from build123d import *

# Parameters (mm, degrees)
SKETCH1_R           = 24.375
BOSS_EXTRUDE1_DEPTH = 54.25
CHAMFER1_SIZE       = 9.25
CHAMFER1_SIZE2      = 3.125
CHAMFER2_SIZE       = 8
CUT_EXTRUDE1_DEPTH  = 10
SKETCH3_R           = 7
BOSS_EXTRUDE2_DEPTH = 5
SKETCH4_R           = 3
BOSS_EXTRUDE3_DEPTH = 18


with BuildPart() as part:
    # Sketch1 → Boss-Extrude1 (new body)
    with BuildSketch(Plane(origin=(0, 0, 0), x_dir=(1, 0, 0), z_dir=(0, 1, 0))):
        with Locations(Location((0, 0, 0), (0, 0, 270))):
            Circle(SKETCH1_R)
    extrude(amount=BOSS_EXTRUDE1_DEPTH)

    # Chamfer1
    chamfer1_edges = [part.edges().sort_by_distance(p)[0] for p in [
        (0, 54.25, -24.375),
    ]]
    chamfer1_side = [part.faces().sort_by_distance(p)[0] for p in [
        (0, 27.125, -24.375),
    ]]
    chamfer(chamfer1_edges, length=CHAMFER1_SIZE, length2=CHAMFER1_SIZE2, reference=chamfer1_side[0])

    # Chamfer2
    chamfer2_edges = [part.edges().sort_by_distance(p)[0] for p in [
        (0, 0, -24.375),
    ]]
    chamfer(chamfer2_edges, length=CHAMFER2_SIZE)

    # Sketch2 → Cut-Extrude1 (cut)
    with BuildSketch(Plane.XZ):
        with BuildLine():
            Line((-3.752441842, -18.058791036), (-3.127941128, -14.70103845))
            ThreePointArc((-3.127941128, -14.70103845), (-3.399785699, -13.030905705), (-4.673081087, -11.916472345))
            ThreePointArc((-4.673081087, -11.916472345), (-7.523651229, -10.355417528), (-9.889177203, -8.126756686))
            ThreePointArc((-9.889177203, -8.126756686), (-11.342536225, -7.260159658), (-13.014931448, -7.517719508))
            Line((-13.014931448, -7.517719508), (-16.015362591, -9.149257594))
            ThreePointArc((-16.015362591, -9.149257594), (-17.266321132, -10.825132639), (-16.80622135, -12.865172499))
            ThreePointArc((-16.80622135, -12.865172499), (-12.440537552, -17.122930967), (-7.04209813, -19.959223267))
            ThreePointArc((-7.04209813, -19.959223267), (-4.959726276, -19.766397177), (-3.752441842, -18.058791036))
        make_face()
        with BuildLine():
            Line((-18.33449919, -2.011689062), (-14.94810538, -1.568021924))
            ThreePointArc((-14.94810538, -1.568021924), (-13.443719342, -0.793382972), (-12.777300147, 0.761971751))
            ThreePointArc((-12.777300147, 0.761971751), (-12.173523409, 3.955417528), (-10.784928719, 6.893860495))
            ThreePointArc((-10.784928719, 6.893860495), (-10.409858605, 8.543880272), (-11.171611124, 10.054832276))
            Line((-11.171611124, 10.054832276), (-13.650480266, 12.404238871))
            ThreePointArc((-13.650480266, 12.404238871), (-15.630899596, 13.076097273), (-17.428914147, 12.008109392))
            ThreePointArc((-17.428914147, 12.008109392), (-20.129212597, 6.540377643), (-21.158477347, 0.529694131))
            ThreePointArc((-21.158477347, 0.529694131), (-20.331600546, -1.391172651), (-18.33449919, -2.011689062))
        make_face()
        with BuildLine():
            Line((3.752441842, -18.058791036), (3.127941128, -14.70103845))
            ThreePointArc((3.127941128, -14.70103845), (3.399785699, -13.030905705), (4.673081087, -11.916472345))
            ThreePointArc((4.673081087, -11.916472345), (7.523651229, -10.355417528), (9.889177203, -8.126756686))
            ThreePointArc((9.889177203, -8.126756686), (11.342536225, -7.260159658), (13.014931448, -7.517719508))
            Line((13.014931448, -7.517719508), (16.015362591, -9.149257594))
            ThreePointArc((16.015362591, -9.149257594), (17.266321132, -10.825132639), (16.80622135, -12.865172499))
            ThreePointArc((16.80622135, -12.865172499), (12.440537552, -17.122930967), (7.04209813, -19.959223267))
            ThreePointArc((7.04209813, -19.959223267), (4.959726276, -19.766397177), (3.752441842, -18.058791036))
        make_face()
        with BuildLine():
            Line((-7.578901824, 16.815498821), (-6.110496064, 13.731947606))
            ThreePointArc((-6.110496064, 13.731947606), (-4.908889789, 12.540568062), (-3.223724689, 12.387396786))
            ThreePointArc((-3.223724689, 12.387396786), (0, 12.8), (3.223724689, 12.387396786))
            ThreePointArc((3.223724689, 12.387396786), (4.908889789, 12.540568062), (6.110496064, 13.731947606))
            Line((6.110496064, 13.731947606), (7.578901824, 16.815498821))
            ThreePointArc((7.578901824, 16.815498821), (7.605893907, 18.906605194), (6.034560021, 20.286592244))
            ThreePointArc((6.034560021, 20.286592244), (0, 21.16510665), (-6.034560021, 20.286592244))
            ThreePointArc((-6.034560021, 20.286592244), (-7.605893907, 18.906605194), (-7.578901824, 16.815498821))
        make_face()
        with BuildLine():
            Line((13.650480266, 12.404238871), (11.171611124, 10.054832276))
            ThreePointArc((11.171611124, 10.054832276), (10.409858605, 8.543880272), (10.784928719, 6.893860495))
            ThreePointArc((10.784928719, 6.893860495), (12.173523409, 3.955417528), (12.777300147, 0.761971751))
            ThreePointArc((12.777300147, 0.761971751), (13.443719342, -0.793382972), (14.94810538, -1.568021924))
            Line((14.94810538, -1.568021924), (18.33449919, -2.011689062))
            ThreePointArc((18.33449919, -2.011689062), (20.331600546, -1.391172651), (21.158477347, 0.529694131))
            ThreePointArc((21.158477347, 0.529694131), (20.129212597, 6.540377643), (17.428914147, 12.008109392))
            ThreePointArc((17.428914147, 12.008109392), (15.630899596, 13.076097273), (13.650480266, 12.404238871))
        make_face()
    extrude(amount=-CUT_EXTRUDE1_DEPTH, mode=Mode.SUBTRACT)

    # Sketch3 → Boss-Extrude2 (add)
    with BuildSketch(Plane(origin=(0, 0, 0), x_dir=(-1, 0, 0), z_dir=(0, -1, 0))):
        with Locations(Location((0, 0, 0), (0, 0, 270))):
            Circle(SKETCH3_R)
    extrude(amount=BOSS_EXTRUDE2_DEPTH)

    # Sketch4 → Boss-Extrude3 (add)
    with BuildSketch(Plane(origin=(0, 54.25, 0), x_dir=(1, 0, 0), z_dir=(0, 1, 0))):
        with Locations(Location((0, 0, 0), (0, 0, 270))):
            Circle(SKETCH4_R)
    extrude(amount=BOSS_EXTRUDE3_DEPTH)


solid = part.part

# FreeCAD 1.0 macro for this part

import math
import FreeCAD as App
import Part
import Sketcher

V = App.Vector


def edges_at(feature, points):
    """Names of the edges that pass closest to the given points."""
    edges = feature.Shape.Edges
    near = lambda p: min(range(len(edges)), key=lambda i: edges[i].distToShape(Part.Vertex(*p))[0])
    return sorted({f"Edge{near(p) + 1}" for p in points})

doc = App.newDocument("Part")
body = doc.addObject("PartDesign::Body", "Body")

# Sketch on XZ plane
sketch1 = body.newObject("Sketcher::SketchObject", "Sketch")
sketch1.AttachmentSupport = (doc.getObject("XZ_Plane"), [""])
sketch1.MapMode = "FlatFace"
sketch1.addGeometry(Part.Circle(V(0, 0, 0), V(0, 0, 1), 24), False)
sketch1.addConstraint([
    Sketcher.Constraint("Coincident", 0, 3, -1, 1),
    Sketcher.Constraint("Diameter", 0, 48.75),
])
pad1 = body.newObject("PartDesign::Pad", "Pad")
pad1.Profile = sketch1
pad1.Length = 54.25
pad1.Reversed = True
doc.recompute()

chamfer = body.newObject("PartDesign::Chamfer", "Chamfer")
chamfer.Base = (pad1, edges_at(pad1, [(0, 54.25, -24.375)]))
chamfer.ChamferType = "Two distances"
chamfer.Size = 9.25
chamfer.Size2 = 3.125
doc.recompute()

chamfer2 = body.newObject("PartDesign::Chamfer", "Chamfer001")
chamfer2.Base = (chamfer, edges_at(chamfer, [(0, 0, -24.375)]))
chamfer2.Size = 8

# Sketch on XZ plane
sketch2 = body.newObject("Sketcher::SketchObject", "Sketch001")
sketch2.AttachmentSupport = (doc.getObject("XZ_Plane"), [""])
sketch2.MapMode = "FlatFace"
sketch2.addGeometry([
    Part.LineSegment(V(-3.8, -18.1, 0), V(-3.1, -14.7, 0)),  # 0
    Part.ArcOfCircle(Part.Circle(V(-5.6, -14.2, 0), V(0, 0, 1), 2.5), math.radians(-11), math.radians(69)),  # 1
    Part.ArcOfCircle(Part.Circle(V(0, 0, 0), V(0, 0, 1), 12.8), math.radians(-141), math.radians(-111)),  # 2
    Part.ArcOfCircle(Part.Circle(V(-11.8, -9.7, 0), V(0, 0, 1), 2.5), math.radians(39), math.radians(119)),  # 3
    Part.LineSegment(V(-13, -7.5, 0), V(-16, -9.1, 0)),  # 4
    Part.ArcOfCircle(Part.Circle(V(-14.8, -11.3, 0), V(0, 0, 1), 2.5), math.radians(119), math.radians(217)),  # 5
    Part.ArcOfCircle(Part.Circle(V(0, 0, 0), V(0, 0, 1), 21.2), math.radians(-143), math.radians(-109)),  # 6
    Part.ArcOfCircle(Part.Circle(V(-6.2, -17.6, 0), V(0, 0, 1), 2.5), math.radians(-109), math.radians(-11)),  # 7
    Part.LineSegment(V(-18.3, -2, 0), V(-14.9, -1.6, 0)),  # 8
    Part.ArcOfCircle(Part.Circle(V(-15.3, 0.9, 0), V(0, 0, 1), 2.5), math.radians(-83), math.radians(-3)),  # 9
    Part.ArcOfCircle(Part.Circle(V(0, 0, 0), V(0, 0, 1), 12.8), math.radians(147), math.radians(177)),  # 10
    Part.ArcOfCircle(Part.Circle(V(-12.9, 8.2, 0), V(0, 0, 1), 2.5), math.radians(-33), math.radians(47)),  # 11
    Part.LineSegment(V(-11.2, 10.1, 0), V(-13.7, 12.4, 0)),  # 12
    Part.ArcOfCircle(Part.Circle(V(-15.4, 10.6, 0), V(0, 0, 1), 2.5), math.radians(47), math.radians(145)),  # 13
    Part.ArcOfCircle(Part.Circle(V(0, 0, 0), V(0, 0, 1), 21.2), math.radians(145), math.radians(179)),  # 14
    Part.ArcOfCircle(Part.Circle(V(-18.7, 0.5, 0), V(0, 0, 1), 2.5), math.radians(179), math.radians(277)),  # 15
    Part.LineSegment(V(3.1, -14.7, 0), V(3.8, -18.1, 0)),  # 16
    Part.ArcOfCircle(Part.Circle(V(6.2, -17.6, 0), V(0, 0, 1), 2.5), math.radians(-169), math.radians(-71)),  # 17
    Part.ArcOfCircle(Part.Circle(V(0, 0, 0), V(0, 0, 1), 21.2), math.radians(-71), math.radians(-37)),  # 18
    Part.ArcOfCircle(Part.Circle(V(14.8, -11.3, 0), V(0, 0, 1), 2.5), math.radians(-37), math.radians(61)),  # 19
    Part.LineSegment(V(16, -9.1, 0), V(13, -7.5, 0)),  # 20
    Part.ArcOfCircle(Part.Circle(V(11.8, -9.7, 0), V(0, 0, 1), 2.5), math.radians(61), math.radians(141)),  # 21
    Part.ArcOfCircle(Part.Circle(V(0, 0, 0), V(0, 0, 1), 12.8), math.radians(-69), math.radians(-39)),  # 22
    Part.ArcOfCircle(Part.Circle(V(5.6, -14.2, 0), V(0, 0, 1), 2.5), math.radians(111), math.radians(191)),  # 23
    Part.LineSegment(V(-7.6, 16.8, 0), V(-6.1, 13.7, 0)),  # 24
    Part.ArcOfCircle(Part.Circle(V(-3.9, 14.8, 0), V(0, 0, 1), 2.5), math.radians(-155), math.radians(-75)),  # 25
    Part.ArcOfCircle(Part.Circle(V(0, 0, 0), V(0, 0, 1), 12.8), math.radians(75), math.radians(105)),  # 26
    Part.ArcOfCircle(Part.Circle(V(3.9, 14.8, 0), V(0, 0, 1), 2.5), math.radians(-105), math.radians(-25)),  # 27
    Part.LineSegment(V(6.1, 13.7, 0), V(7.6, 16.8, 0)),  # 28
    Part.ArcOfCircle(Part.Circle(V(5.3, 17.9, 0), V(0, 0, 1), 2.5), math.radians(-25), math.radians(73)),  # 29
    Part.ArcOfCircle(Part.Circle(V(0, 0, 0), V(0, 0, 1), 21.2), math.radians(73), math.radians(107)),  # 30
    Part.ArcOfCircle(Part.Circle(V(-5.3, 17.9, 0), V(0, 0, 1), 2.5), math.radians(107), math.radians(205)),  # 31
    Part.LineSegment(V(13.7, 12.4, 0), V(11.2, 10.1, 0)),  # 32
    Part.ArcOfCircle(Part.Circle(V(12.9, 8.2, 0), V(0, 0, 1), 2.5), math.radians(133), math.radians(213)),  # 33
    Part.ArcOfCircle(Part.Circle(V(0, 0, 0), V(0, 0, 1), 12.8), math.radians(3), math.radians(33)),  # 34
    Part.ArcOfCircle(Part.Circle(V(15.3, 0.9, 0), V(0, 0, 1), 2.5), math.radians(-177), math.radians(-97)),  # 35
    Part.LineSegment(V(14.9, -1.6, 0), V(18.3, -2, 0)),  # 36
    Part.ArcOfCircle(Part.Circle(V(18.7, 0.5, 0), V(0, 0, 1), 2.5), math.radians(-97), math.radians(1)),  # 37
    Part.ArcOfCircle(Part.Circle(V(0, 0, 0), V(0, 0, 1), 21.2), math.radians(1), math.radians(35)),  # 38
    Part.ArcOfCircle(Part.Circle(V(15.4, 10.6, 0), V(0, 0, 1), 2.5), math.radians(35), math.radians(133)),  # 39
], False)
sketch2.addConstraint([
    Sketcher.Constraint("Tangent", 0, 2, 1, 1),
    Sketcher.Constraint("Tangent", 1, 2, 2, 2),
    Sketcher.Constraint("Tangent", 2, 1, 3, 1),
    Sketcher.Constraint("Tangent", 3, 2, 4, 1),
    Sketcher.Constraint("Tangent", 4, 2, 5, 1),
    Sketcher.Constraint("Tangent", 5, 2, 6, 1),
    Sketcher.Constraint("Tangent", 6, 2, 7, 1),
    Sketcher.Constraint("Tangent", 7, 2, 0, 1),
    Sketcher.Constraint("Tangent", 8, 2, 9, 1),
    Sketcher.Constraint("Tangent", 9, 2, 10, 2),
    Sketcher.Constraint("Tangent", 10, 1, 11, 1),
    Sketcher.Constraint("Tangent", 11, 2, 12, 1),
    Sketcher.Constraint("Tangent", 12, 2, 13, 1),
    Sketcher.Constraint("Tangent", 13, 2, 14, 1),
    Sketcher.Constraint("Tangent", 14, 2, 15, 1),
    Sketcher.Constraint("Tangent", 15, 2, 8, 1),
    Sketcher.Constraint("Tangent", 16, 2, 17, 1),
    Sketcher.Constraint("Tangent", 17, 2, 18, 1),
    Sketcher.Constraint("Tangent", 18, 2, 19, 1),
    Sketcher.Constraint("Tangent", 19, 2, 20, 1),
    Sketcher.Constraint("Tangent", 20, 2, 21, 1),
    Sketcher.Constraint("Tangent", 21, 2, 22, 2),
    Sketcher.Constraint("Tangent", 22, 1, 23, 1),
    Sketcher.Constraint("Tangent", 23, 2, 16, 1),
    Sketcher.Constraint("Tangent", 24, 2, 25, 1),
    Sketcher.Constraint("Tangent", 25, 2, 26, 2),
    Sketcher.Constraint("Tangent", 26, 1, 27, 1),
    Sketcher.Constraint("Tangent", 27, 2, 28, 1),
    Sketcher.Constraint("Tangent", 28, 2, 29, 1),
    Sketcher.Constraint("Tangent", 29, 2, 30, 1),
    Sketcher.Constraint("Tangent", 30, 2, 31, 1),
    Sketcher.Constraint("Tangent", 31, 2, 24, 1),
    Sketcher.Constraint("Tangent", 32, 2, 33, 1),
    Sketcher.Constraint("Tangent", 33, 2, 34, 2),
    Sketcher.Constraint("Tangent", 34, 1, 35, 1),
    Sketcher.Constraint("Tangent", 35, 2, 36, 1),
    Sketcher.Constraint("Tangent", 36, 2, 37, 1),
    Sketcher.Constraint("Tangent", 37, 2, 38, 1),
    Sketcher.Constraint("Tangent", 38, 2, 39, 1),
    Sketcher.Constraint("Tangent", 39, 2, 32, 1),
    Sketcher.Constraint("Coincident", 2, 3, -1, 1),
    Sketcher.Constraint("Coincident", 6, 3, -1, 1),
    Sketcher.Constraint("Coincident", 10, 3, -1, 1),
    Sketcher.Constraint("Coincident", 14, 3, -1, 1),
    Sketcher.Constraint("Coincident", 18, 3, -1, 1),
    Sketcher.Constraint("Coincident", 22, 3, -1, 1),
    Sketcher.Constraint("Coincident", 26, 3, -1, 1),
    Sketcher.Constraint("Coincident", 30, 3, -1, 1),
    Sketcher.Constraint("Coincident", 34, 3, -1, 1),
    Sketcher.Constraint("Coincident", 38, 3, -1, 1),
    Sketcher.Constraint("Equal", 1, 3),
    Sketcher.Constraint("Equal", 3, 5),
    Sketcher.Constraint("Equal", 5, 7),
    Sketcher.Constraint("Equal", 7, 9),
    Sketcher.Constraint("Equal", 2, 10),
    Sketcher.Constraint("Equal", 9, 11),
    Sketcher.Constraint("Equal", 11, 13),
    Sketcher.Constraint("Equal", 6, 14),
    Sketcher.Constraint("Equal", 13, 15),
    Sketcher.Constraint("Equal", 15, 17),
    Sketcher.Constraint("Equal", 14, 18),
    Sketcher.Constraint("Equal", 17, 19),
    Sketcher.Constraint("Equal", 19, 21),
    Sketcher.Constraint("Equal", 10, 22),
    Sketcher.Constraint("Equal", 21, 23),
    Sketcher.Constraint("Equal", 23, 25),
    Sketcher.Constraint("Equal", 22, 26),
    Sketcher.Constraint("Equal", 25, 27),
    Sketcher.Constraint("Equal", 27, 29),
    Sketcher.Constraint("Equal", 18, 30),
    Sketcher.Constraint("Equal", 29, 31),
    Sketcher.Constraint("Equal", 31, 33),
    Sketcher.Constraint("Equal", 26, 34),
    Sketcher.Constraint("Equal", 33, 35),
    Sketcher.Constraint("Equal", 35, 37),
    Sketcher.Constraint("Equal", 30, 38),
    Sketcher.Constraint("Equal", 37, 39),
    Sketcher.Constraint("Symmetric", 7, 2, 16, 2, -2),
    Sketcher.Constraint("Symmetric", 4, 2, 19, 2, -2),
    Sketcher.Constraint("Symmetric", 24, 2, 27, 2, -2),
    Sketcher.Constraint("Symmetric", 11, 2, 32, 2, -2),
    Sketcher.Constraint("Symmetric", 8, 2, 35, 2, -2),
    Sketcher.Constraint("Equal", 0, 4),
    Sketcher.Constraint("Equal", 4, 8),
    Sketcher.Constraint("Equal", 8, 12),
    Sketcher.Constraint("Equal", 20, 24),
    Sketcher.Constraint("Radius", 1, 2.5),
    Sketcher.Constraint("Radius", 2, 12.8),
    Sketcher.Constraint("Radius", 6, 21.165107),
    Sketcher.Constraint("DistanceX", 6, 2, -1, 1, 7.042098),
    Sketcher.Constraint("DistanceX", 9, 2, -1, 1, 12.7773),
    Sketcher.Constraint("DistanceX", 15, 2, -1, 1, 18.334499),
    Sketcher.Constraint("DistanceX", -1, 1, 28, 2, 7.578902),
    Sketcher.Constraint("DistanceX", 5, 3, -1, 1, 14.821088),
    Sketcher.Constraint("DistanceX", 11, 3, -1, 1, 12.89136),
])
pocket1 = body.newObject("PartDesign::Pocket", "Pocket")
pocket1.Profile = sketch2
pocket1.Length = 10

# Sketch on XZ plane
sketch3 = body.newObject("Sketcher::SketchObject", "Sketch002")
sketch3.AttachmentSupport = (doc.getObject("XZ_Plane"), [""])
sketch3.MapMode = "FlatFace"
sketch3.addGeometry(Part.Circle(V(0, 0, 0), V(0, 0, 1), 7), False)
sketch3.addConstraint([
    Sketcher.Constraint("Coincident", 0, 3, -1, 1),
    Sketcher.Constraint("Diameter", 0, 14.0),
])
pad2 = body.newObject("PartDesign::Pad", "Pad001")
pad2.Profile = sketch3
pad2.Length = 5

# Sketch on XZ plane
sketch4 = body.newObject("Sketcher::SketchObject", "Sketch003")
sketch4.AttachmentSupport = (doc.getObject("XZ_Plane"), [""])
sketch4.MapMode = "FlatFace"
sketch4.AttachmentOffset = App.Placement(V(0, 0, -54.25), App.Rotation())
sketch4.addGeometry(Part.Circle(V(0, 0, 0), V(0, 0, 1), 3), False)
sketch4.addConstraint([
    Sketcher.Constraint("Coincident", 0, 3, -1, 1),
    Sketcher.Constraint("Diameter", 0, 6.0),
])
pad3 = body.newObject("PartDesign::Pad", "Pad002")
pad3.Profile = sketch4
pad3.Length = 18
pad3.Reversed = True

doc.recompute()
